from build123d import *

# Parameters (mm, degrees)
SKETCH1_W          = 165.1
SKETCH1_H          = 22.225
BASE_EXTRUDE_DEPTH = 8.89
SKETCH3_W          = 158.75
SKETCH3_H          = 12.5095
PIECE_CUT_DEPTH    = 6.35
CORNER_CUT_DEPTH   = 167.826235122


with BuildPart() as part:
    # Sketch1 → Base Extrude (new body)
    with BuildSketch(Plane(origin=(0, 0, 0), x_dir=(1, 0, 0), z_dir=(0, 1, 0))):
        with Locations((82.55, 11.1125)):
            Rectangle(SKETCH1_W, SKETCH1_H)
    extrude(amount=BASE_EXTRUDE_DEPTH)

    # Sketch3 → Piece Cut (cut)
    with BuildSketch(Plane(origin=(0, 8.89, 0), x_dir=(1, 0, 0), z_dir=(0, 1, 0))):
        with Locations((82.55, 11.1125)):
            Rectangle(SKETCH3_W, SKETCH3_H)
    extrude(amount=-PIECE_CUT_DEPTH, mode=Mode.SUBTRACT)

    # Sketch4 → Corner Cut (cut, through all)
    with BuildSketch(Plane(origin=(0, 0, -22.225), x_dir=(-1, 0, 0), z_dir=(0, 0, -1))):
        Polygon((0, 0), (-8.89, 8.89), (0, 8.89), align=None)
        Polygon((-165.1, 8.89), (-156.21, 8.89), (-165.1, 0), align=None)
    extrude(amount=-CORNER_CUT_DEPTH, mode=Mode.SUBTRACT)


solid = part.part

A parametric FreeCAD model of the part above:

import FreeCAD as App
import Part
import Sketcher

V = App.Vector
Q = App.Units.Quantity


def add_polygon(sketch, points):
    """Adds a closed chain of lines whose ends are joined by coincident constraints."""
    first, n = sketch.GeometryCount, len(points)
    for a, b in zip(points, points[1:] + points[:1]):
        sketch.addGeometry(Part.LineSegment(App.Vector(*a, 0), App.Vector(*b, 0)), False)
    for i in range(n):
        sketch.addConstraint(Sketcher.Constraint("Coincident", first + i, 2, first + (i + 1) % n, 1))

doc = App.newDocument("Part")
body = doc.addObject("PartDesign::Body", "Body")

sketch1 = body.newObject("Sketcher::SketchObject", "Sketch")
sketch1.AttachmentSupport = (doc.getObject("XZ_Plane"), [""])
sketch1.MapMode = "FlatFace"
add_polygon(sketch1, [(0, -22), (0, 0), (165, 0), (165, -22)])
sketch1.addConstraint(Sketcher.Constraint("Vertical", 0))
sketch1.addConstraint(Sketcher.Constraint("Horizontal", 1))
sketch1.addConstraint(Sketcher.Constraint("Vertical", 2))
sketch1.addConstraint(Sketcher.Constraint("Horizontal", 3))
sketch1.addConstraint(Sketcher.Constraint("Coincident", 0, 2, -1, 1))
sketch1.addConstraint(Sketcher.Constraint("DistanceX", 1, 1, 1, 2, Q("6.5 in")))
sketch1.addConstraint(Sketcher.Constraint("DistanceY", 0, 1, 0, 2, Q("0.875 in")))
pad1 = body.newObject("PartDesign::Pad", "Pad")
pad1.Profile = sketch1
pad1.Length = Q("0.35 in")
pad1.Reversed = True

sketch2 = body.newObject("Sketcher::SketchObject", "Sketch001")
sketch2.AttachmentSupport = (doc.getObject("XZ_Plane"), [""])
sketch2.MapMode = "FlatFace"
sketch2.AttachmentOffset = App.Placement(V(0, 0, -0.35 * 25.4), App.Rotation())
add_polygon(sketch2, [(3, -17), (3, -5), (162, -5), (162, -17)])
sketch2.addConstraint(Sketcher.Constraint("Vertical", 0))
sketch2.addConstraint(Sketcher.Constraint("Horizontal", 1))
sketch2.addConstraint(Sketcher.Constraint("Vertical", 2))
sketch2.addConstraint(Sketcher.Constraint("Horizontal", 3))
sketch2.addConstraint(Sketcher.Constraint("DistanceX", 1, 1, 1, 2, Q("6.25 in")))
sketch2.addConstraint(Sketcher.Constraint("DistanceY", 0, 1, 0, 2, Q("0.4925 in")))
sketch2.addConstraint(Sketcher.Constraint("DistanceX", -1, 1, 0, 2, Q("0.125 in")))
sketch2.addConstraint(Sketcher.Constraint("DistanceY", 0, 2, -1, 1, 4.85775))
pocket1 = body.newObject("PartDesign::Pocket", "Pocket")
pocket1.Profile = sketch2
pocket1.Length = Q("0.25 in")
pocket1.Reversed = True

sketch3 = body.newObject("Sketcher::SketchObject", "Sketch002")
sketch3.AttachmentSupport = (doc.getObject("XY_Plane"), [""])
sketch3.MapMode = "FlatFace"
sketch3.AttachmentOffset = App.Placement(V(0, 0, -0.875 * 25.4), App.Rotation())
add_polygon(sketch3, [(9, 9), (0, 0), (0, 9)])
add_polygon(sketch3, [(156, 9), (165, 9), (165, 0)])
sketch3.addConstraint(Sketcher.Constraint("Vertical", 1))
sketch3.addConstraint(Sketcher.Constraint("Horizontal", 2))
sketch3.addConstraint(Sketcher.Constraint("Horizontal", 3))
sketch3.addConstraint(Sketcher.Constraint("Vertical", 4))
sketch3.addConstraint(Sketcher.Constraint("Coincident", 0, 2, -1, 1))
sketch3.addConstraint(Sketcher.Constraint("PointOnObject", 4, 2, -1))
sketch3.addConstraint(Sketcher.Constraint("Perpendicular", 0, 5))
sketch3.addConstraint(Sketcher.Constraint("Horizontal", 2, 2, 3, 2))
sketch3.addConstraint(Sketcher.Constraint("Equal", 2, 3))
sketch3.addConstraint(Sketcher.Constraint("DistanceX", 2, 1, 2, 2, Q("0.35 in")))
sketch3.addConstraint(Sketcher.Constraint("DistanceX", -1, 1, 3, 2, Q("6.5 in")))
pocket2 = body.newObject("PartDesign::Pocket", "Pocket001")
pocket2.Profile = sketch3
pocket2.Type = "ThroughAll"
pocket2.Reversed = True

doc.recompute()
